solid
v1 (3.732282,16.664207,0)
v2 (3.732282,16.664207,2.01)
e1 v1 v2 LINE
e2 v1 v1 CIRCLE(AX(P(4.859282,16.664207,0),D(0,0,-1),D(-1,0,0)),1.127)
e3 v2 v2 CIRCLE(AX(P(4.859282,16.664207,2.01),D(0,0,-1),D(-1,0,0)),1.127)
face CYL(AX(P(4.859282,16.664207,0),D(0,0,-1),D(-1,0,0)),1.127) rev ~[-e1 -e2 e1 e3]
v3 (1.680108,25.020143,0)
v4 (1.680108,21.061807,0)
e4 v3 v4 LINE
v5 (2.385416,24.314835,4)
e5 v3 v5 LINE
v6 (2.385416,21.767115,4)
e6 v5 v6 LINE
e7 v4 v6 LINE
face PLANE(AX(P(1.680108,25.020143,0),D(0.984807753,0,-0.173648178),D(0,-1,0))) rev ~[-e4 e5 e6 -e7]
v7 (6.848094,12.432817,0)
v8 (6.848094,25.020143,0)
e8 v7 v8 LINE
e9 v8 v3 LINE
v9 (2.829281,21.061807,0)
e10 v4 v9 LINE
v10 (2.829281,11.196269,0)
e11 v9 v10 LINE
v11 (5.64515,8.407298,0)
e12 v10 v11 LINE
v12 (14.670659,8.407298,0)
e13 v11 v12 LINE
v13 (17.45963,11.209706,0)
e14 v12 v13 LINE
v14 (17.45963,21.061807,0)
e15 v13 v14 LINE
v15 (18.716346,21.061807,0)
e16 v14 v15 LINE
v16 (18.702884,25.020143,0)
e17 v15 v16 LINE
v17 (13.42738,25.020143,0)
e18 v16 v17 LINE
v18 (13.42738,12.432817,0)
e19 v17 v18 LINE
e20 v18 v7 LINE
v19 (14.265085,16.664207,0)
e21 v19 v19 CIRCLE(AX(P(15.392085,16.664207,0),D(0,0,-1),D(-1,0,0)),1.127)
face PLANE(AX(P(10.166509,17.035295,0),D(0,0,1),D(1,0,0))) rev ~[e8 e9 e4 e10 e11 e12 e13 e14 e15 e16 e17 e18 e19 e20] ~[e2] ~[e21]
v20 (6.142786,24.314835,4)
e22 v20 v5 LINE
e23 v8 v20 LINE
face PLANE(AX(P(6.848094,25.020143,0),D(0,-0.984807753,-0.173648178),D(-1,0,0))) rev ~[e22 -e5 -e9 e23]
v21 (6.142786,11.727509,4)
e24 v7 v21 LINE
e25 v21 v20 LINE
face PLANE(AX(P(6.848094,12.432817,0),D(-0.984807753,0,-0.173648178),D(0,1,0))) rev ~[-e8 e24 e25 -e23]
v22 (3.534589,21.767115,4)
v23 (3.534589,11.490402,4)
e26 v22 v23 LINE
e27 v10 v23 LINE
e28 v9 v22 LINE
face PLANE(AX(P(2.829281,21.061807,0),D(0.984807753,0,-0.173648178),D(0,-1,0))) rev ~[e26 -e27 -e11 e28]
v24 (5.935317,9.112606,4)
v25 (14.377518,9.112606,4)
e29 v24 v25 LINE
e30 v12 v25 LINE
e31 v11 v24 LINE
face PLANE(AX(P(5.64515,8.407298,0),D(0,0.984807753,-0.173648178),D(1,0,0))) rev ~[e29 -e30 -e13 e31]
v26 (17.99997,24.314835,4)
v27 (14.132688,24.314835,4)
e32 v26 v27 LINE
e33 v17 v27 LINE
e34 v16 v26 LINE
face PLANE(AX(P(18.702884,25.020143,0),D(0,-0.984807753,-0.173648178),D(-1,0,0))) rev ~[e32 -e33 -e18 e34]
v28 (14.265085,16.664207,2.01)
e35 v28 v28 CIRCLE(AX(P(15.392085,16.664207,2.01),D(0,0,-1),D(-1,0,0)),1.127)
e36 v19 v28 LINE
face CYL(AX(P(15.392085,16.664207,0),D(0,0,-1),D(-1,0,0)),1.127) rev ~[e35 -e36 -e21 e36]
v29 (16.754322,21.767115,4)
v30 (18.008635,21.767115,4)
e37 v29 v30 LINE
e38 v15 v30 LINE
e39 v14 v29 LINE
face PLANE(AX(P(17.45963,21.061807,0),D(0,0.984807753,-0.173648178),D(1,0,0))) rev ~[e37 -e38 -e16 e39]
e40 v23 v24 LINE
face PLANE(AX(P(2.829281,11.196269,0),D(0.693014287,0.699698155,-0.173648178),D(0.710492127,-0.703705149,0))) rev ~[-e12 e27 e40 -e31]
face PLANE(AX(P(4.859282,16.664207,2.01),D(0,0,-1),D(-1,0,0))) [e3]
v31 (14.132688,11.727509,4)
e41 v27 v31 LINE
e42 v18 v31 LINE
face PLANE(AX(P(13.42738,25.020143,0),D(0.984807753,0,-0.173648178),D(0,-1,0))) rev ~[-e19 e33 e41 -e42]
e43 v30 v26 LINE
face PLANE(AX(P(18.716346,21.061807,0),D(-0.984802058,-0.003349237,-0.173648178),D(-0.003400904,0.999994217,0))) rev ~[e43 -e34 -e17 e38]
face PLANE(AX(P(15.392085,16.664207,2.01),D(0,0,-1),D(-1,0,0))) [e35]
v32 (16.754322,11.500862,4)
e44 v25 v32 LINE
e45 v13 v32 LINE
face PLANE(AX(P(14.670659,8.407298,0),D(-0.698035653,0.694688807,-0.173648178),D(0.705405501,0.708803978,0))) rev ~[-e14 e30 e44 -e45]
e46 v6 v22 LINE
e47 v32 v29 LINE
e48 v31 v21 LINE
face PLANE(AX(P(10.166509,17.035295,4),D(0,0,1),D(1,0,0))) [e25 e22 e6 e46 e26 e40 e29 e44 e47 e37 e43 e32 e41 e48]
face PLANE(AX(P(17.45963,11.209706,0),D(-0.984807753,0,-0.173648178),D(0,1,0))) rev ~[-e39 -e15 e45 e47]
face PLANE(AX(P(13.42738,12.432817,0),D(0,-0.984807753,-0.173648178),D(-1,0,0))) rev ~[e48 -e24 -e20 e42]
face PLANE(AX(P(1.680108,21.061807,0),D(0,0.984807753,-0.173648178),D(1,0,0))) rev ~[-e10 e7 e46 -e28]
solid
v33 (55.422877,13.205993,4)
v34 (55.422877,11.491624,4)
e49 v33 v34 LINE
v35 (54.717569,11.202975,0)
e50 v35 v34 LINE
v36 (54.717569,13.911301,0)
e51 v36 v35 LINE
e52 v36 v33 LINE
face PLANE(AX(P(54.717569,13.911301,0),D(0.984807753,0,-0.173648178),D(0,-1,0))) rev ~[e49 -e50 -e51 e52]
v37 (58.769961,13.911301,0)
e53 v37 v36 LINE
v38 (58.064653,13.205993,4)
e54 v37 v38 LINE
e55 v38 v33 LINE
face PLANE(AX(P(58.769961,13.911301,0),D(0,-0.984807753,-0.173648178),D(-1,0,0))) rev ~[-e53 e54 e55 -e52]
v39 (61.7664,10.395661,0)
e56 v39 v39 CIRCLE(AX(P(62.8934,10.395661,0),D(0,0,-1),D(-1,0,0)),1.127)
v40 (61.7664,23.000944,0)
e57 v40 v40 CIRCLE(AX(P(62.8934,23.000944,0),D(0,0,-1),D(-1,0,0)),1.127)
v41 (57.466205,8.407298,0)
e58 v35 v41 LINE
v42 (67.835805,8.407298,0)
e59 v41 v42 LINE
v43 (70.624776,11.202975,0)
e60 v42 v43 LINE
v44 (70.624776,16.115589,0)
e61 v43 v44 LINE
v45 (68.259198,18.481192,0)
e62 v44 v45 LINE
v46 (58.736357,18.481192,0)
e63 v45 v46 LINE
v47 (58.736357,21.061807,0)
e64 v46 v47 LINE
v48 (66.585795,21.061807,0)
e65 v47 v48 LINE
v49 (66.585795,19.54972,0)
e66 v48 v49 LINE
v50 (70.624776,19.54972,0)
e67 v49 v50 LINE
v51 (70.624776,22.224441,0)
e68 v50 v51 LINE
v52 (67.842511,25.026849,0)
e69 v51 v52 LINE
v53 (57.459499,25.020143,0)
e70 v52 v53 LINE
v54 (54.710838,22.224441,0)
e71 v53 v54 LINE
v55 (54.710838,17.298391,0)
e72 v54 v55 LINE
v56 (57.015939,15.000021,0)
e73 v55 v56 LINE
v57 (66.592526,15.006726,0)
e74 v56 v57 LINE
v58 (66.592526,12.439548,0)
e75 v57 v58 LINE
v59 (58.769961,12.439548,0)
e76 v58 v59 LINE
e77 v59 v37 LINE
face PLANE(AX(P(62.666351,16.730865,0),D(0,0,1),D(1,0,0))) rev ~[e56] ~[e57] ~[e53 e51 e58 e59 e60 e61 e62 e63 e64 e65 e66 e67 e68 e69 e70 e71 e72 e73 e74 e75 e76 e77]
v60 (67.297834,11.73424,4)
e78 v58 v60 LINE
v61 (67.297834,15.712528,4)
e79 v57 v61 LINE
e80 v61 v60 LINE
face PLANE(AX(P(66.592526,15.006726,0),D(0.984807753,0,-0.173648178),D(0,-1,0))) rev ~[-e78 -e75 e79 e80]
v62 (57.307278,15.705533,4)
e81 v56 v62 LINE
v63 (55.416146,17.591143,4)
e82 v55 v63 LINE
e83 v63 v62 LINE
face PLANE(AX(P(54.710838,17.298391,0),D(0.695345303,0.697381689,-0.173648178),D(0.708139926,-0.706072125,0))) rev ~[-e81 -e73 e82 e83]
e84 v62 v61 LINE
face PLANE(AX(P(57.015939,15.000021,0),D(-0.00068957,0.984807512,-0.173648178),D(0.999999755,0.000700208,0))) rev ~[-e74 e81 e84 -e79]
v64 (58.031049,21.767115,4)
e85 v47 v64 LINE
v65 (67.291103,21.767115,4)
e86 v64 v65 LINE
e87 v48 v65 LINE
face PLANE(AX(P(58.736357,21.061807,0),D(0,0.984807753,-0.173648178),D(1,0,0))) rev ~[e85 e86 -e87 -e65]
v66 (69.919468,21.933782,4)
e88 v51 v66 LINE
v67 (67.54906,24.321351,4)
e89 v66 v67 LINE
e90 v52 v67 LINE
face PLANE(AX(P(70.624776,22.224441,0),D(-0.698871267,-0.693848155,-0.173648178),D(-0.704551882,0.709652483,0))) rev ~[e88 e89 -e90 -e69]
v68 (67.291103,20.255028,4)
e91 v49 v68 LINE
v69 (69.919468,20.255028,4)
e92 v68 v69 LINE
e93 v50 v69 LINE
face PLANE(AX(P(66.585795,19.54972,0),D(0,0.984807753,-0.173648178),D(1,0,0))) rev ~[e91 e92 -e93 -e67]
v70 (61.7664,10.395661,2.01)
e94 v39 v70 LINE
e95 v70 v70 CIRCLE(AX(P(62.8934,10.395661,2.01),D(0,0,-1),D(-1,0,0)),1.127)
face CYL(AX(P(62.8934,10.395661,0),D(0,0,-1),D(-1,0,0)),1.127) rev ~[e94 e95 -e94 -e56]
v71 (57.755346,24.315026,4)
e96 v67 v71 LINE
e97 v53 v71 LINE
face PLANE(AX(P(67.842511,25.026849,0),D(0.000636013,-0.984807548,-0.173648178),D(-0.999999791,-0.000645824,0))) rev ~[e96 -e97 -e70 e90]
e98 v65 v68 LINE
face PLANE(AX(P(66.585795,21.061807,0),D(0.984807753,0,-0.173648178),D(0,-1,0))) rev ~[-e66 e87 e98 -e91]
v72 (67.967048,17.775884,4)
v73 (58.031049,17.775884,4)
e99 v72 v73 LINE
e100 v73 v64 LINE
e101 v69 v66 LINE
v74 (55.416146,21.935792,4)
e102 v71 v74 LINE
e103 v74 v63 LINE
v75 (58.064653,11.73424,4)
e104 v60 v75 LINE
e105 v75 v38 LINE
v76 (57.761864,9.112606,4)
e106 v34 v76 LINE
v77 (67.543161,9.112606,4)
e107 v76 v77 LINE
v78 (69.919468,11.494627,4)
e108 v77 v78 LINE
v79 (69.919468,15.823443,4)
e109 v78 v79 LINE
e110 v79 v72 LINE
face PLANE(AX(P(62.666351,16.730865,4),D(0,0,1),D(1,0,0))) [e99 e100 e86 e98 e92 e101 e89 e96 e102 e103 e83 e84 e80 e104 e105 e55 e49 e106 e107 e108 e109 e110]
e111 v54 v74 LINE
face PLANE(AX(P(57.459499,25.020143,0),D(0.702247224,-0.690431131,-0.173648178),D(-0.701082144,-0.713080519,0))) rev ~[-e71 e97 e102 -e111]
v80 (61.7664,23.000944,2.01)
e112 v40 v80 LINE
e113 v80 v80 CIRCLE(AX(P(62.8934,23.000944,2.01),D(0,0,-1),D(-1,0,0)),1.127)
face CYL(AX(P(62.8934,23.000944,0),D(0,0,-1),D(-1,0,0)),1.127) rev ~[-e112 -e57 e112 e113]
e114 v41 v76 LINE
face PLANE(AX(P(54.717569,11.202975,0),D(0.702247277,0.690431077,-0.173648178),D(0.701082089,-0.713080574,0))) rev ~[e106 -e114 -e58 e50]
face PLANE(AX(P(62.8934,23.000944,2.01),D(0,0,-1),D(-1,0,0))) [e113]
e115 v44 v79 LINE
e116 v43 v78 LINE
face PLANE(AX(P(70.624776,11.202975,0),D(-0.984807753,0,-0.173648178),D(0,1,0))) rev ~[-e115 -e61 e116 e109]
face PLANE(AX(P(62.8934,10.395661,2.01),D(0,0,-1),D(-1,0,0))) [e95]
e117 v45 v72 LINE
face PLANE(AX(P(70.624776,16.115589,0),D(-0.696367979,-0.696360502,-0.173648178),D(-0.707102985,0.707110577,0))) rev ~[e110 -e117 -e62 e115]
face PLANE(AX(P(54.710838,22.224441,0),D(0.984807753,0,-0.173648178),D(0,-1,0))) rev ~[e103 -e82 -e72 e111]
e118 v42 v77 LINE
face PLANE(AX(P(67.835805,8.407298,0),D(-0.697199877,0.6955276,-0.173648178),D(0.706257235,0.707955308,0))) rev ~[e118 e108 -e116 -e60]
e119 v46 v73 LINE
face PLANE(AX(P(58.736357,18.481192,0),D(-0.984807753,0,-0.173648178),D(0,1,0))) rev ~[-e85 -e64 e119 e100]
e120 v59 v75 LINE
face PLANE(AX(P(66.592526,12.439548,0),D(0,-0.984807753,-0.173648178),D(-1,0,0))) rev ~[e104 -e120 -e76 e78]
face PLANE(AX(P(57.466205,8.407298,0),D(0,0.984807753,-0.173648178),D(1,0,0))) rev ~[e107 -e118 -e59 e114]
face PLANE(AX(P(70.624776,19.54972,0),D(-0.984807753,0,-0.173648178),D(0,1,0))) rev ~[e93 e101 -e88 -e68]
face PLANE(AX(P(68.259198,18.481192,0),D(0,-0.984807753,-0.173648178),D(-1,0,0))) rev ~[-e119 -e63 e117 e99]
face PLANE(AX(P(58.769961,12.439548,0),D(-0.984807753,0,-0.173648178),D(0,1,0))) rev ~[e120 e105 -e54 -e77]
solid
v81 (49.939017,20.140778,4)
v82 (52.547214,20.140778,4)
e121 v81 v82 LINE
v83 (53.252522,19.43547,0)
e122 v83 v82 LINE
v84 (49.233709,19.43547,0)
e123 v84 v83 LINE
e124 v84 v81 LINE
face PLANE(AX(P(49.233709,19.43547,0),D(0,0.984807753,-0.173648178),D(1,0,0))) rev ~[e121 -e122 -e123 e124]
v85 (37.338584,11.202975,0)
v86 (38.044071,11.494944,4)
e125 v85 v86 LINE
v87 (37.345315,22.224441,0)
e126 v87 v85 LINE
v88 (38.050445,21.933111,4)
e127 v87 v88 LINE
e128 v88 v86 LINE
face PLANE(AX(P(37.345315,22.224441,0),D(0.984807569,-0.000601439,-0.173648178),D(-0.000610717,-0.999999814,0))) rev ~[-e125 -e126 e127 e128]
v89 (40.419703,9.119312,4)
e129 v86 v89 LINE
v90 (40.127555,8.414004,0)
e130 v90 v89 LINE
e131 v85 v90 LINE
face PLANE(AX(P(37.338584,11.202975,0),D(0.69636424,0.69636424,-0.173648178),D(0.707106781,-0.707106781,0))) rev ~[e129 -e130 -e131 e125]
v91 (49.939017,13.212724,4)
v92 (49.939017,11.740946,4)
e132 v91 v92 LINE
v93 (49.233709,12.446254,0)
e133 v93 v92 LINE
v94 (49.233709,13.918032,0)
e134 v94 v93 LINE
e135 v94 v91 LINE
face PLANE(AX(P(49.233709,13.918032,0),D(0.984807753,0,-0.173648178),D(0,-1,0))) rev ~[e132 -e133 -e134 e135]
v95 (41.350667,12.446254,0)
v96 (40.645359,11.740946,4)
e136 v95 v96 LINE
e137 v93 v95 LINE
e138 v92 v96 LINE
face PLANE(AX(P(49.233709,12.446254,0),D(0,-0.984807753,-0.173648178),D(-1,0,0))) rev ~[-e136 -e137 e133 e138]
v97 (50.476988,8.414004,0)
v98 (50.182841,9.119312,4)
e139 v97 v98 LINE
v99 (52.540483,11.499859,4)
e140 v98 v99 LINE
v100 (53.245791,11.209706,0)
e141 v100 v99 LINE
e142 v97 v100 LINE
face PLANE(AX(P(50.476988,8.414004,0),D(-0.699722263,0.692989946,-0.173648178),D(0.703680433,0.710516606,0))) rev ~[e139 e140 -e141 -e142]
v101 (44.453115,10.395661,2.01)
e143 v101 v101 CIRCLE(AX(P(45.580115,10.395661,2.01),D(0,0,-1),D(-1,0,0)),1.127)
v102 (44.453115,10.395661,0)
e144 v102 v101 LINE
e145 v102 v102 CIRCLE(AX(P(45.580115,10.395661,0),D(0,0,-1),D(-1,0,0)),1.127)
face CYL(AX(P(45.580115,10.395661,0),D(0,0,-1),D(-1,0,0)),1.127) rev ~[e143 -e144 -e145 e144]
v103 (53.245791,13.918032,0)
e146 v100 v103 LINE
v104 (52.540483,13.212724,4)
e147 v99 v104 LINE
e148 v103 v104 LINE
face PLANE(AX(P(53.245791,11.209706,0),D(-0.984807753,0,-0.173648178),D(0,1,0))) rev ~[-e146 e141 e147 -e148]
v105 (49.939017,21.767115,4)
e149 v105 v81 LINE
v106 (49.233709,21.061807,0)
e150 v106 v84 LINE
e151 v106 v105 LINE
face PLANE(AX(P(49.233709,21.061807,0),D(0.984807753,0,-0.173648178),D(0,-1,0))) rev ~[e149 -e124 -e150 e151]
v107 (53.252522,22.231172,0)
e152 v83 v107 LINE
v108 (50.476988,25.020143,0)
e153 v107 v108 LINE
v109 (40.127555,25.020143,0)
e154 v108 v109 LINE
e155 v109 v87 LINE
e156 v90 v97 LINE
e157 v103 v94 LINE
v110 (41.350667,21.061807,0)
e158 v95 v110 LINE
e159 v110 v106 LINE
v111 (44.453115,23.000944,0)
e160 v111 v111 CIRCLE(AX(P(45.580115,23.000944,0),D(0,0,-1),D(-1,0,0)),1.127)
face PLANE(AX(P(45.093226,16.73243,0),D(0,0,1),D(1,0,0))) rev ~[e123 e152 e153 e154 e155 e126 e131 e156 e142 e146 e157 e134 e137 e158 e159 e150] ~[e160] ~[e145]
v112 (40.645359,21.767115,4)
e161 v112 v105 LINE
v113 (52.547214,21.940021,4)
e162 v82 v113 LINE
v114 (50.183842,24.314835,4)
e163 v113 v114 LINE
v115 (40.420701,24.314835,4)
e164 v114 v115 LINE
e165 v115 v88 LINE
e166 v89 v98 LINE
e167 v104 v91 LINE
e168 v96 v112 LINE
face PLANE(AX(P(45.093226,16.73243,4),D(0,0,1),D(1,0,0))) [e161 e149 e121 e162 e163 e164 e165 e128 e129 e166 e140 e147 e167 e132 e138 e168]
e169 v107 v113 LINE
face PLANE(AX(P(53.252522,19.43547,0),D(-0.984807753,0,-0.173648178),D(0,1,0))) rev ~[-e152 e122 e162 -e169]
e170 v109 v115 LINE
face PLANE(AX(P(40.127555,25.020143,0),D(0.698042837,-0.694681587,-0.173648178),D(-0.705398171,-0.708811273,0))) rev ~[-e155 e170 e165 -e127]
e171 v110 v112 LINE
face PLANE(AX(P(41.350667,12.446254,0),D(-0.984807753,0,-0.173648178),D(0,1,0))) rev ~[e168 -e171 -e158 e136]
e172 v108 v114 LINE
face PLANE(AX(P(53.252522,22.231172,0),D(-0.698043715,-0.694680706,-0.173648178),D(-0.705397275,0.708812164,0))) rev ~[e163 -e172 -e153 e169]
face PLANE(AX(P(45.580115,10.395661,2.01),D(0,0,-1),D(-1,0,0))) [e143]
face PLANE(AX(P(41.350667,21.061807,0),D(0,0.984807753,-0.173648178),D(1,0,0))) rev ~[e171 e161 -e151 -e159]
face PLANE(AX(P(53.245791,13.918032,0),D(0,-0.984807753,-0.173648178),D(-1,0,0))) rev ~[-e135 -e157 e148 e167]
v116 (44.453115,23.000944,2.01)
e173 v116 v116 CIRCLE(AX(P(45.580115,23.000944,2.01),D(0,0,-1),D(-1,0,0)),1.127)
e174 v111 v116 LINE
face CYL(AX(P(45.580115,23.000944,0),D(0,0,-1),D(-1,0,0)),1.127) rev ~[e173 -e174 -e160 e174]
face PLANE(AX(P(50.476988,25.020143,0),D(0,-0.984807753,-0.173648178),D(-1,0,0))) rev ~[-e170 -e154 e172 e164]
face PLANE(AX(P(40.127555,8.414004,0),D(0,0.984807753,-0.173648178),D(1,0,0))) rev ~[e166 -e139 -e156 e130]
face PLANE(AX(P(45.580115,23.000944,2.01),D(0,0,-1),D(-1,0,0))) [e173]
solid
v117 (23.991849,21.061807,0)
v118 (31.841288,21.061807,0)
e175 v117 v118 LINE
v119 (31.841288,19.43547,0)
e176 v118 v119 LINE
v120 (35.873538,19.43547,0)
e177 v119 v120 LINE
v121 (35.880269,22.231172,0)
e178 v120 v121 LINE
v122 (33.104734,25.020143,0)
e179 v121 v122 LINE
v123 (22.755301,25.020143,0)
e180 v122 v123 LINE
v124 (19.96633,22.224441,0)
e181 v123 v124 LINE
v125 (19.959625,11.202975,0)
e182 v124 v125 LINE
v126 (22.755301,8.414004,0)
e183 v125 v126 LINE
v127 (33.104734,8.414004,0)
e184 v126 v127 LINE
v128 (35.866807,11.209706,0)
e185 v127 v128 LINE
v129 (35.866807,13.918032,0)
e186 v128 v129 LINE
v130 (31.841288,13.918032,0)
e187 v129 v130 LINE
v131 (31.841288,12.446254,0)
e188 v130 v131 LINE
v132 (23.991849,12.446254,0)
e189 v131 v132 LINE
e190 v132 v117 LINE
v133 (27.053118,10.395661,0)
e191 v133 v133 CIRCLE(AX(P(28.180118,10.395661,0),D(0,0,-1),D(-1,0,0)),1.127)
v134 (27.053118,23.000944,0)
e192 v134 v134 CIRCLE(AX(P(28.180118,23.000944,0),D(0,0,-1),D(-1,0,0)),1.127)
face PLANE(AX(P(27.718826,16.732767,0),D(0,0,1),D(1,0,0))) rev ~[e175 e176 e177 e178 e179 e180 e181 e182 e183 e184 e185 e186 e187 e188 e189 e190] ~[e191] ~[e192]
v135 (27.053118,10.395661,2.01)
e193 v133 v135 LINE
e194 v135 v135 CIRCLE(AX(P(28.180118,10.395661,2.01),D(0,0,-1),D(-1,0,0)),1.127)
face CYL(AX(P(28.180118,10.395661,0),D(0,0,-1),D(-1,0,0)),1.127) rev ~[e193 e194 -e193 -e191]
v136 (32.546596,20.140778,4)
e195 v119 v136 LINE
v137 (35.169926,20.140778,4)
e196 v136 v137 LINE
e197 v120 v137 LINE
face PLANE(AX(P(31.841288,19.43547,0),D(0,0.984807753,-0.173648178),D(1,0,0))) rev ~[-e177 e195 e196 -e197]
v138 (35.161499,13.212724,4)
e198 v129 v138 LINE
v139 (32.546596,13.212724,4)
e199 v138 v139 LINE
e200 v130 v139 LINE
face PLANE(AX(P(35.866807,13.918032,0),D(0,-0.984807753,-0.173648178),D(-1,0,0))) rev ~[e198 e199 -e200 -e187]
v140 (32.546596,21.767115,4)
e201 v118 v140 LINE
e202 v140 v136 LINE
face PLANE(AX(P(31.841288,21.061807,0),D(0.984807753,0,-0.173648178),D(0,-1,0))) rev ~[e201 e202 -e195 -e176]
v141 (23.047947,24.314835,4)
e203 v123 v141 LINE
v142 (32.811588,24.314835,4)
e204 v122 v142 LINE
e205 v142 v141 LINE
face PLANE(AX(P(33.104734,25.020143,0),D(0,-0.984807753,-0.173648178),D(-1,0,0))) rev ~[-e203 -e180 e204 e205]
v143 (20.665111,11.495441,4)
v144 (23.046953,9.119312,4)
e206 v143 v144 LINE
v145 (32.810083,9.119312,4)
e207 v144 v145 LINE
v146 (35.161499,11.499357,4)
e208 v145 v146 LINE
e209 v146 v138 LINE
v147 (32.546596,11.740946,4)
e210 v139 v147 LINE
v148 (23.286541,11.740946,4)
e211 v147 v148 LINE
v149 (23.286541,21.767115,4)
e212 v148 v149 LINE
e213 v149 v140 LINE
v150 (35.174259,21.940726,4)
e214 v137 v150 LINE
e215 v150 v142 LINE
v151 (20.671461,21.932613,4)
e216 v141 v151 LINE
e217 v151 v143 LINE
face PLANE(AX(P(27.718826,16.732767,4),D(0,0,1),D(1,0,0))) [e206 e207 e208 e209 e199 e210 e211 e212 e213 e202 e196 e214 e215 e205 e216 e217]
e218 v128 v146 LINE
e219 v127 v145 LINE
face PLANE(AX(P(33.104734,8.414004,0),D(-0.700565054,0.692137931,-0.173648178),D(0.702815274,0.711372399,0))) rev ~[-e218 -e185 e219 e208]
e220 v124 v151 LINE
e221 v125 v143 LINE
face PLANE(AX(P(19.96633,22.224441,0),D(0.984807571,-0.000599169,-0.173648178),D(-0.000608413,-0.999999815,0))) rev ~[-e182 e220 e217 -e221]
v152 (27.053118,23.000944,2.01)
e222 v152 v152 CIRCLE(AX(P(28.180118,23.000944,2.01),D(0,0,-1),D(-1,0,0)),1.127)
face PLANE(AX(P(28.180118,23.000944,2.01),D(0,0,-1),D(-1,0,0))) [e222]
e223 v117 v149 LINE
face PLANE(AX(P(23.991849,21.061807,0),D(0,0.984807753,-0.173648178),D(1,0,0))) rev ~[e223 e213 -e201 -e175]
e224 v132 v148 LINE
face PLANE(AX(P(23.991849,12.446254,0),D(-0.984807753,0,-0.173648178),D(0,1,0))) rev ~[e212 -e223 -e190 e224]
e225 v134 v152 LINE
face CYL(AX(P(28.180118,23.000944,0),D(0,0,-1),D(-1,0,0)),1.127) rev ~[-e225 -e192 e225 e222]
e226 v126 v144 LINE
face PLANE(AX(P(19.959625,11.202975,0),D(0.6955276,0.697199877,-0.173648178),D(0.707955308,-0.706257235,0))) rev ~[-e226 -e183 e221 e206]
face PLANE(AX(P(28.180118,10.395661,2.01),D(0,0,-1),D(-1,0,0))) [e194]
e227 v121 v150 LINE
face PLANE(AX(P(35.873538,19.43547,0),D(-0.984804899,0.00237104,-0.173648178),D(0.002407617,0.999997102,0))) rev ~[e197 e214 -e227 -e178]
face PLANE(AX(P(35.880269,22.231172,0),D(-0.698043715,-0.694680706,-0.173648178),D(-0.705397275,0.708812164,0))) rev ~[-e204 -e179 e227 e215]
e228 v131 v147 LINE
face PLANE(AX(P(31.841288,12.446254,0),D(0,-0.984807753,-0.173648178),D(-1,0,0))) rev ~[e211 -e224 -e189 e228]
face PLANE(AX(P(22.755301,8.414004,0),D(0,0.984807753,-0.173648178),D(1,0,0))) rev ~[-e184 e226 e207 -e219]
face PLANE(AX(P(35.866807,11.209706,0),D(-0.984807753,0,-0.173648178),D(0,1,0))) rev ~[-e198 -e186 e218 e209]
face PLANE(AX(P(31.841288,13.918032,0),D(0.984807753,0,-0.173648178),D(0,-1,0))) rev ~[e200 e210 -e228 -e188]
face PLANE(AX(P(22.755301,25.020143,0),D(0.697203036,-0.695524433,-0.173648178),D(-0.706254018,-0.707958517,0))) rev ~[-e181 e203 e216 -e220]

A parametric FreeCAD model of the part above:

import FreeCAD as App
import Part
import Sketcher
Q = App.Units.Quantity


def faces_at(feature, points):
    """Names of the faces that lie closest to the given points."""
    faces = feature.Shape.Faces
    near = lambda p: min(range(len(faces)), key=lambda i: faces[i].distToShape(Part.Vertex(*p))[0])
    return sorted({f"Face{near(p) + 1}" for p in points})

doc = App.newDocument("Part")
body = doc.addObject("PartDesign::Body", "Body")

# Sketch on XY plane
sketch1 = body.newObject("Sketcher::SketchObject", "Sketch")
sketch1.AttachmentSupport = (doc.getObject("XY_Plane"), [""])
sketch1.MapMode = "FlatFace"
sketch1.addGeometry([
    Part.LineSegment(App.Vector(67.8, 25, 0), App.Vector(57.5, 25, 0)),  # 0
    Part.LineSegment(App.Vector(57.5, 25, 0), App.Vector(54.7, 22.2, 0)),  # 1
    Part.LineSegment(App.Vector(54.7, 22.2, 0), App.Vector(54.7, 17.3, 0)),  # 2
    Part.LineSegment(App.Vector(54.7, 17.3, 0), App.Vector(57, 15, 0)),  # 3
    Part.LineSegment(App.Vector(57, 15, 0), App.Vector(66.6, 15, 0)),  # 4
    Part.LineSegment(App.Vector(66.6, 15, 0), App.Vector(66.6, 12.4, 0)),  # 5
    Part.LineSegment(App.Vector(66.6, 12.4, 0), App.Vector(58.8, 12.4, 0)),  # 6
    Part.LineSegment(App.Vector(58.8, 12.4, 0), App.Vector(58.8, 13.9, 0)),  # 7
    Part.LineSegment(App.Vector(58.8, 13.9, 0), App.Vector(54.7, 13.9, 0)),  # 8
    Part.LineSegment(App.Vector(54.7, 13.9, 0), App.Vector(54.7, 11.2, 0)),  # 9
    Part.LineSegment(App.Vector(54.7, 11.2, 0), App.Vector(57.5, 8.4, 0)),  # 10
    Part.LineSegment(App.Vector(57.5, 8.4, 0), App.Vector(67.8, 8.4, 0)),  # 11
    Part.LineSegment(App.Vector(67.8, 8.4, 0), App.Vector(70.6, 11.2, 0)),  # 12
    Part.LineSegment(App.Vector(70.6, 11.2, 0), App.Vector(70.6, 16.1, 0)),  # 13
    Part.LineSegment(App.Vector(70.6, 16.1, 0), App.Vector(68.3, 18.5, 0)),  # 14
    Part.LineSegment(App.Vector(68.3, 18.5, 0), App.Vector(58.7, 18.5, 0)),  # 15
    Part.LineSegment(App.Vector(58.7, 18.5, 0), App.Vector(58.7, 21.1, 0)),  # 16
    Part.LineSegment(App.Vector(58.7, 21.1, 0), App.Vector(66.6, 21.1, 0)),  # 17
    Part.LineSegment(App.Vector(66.6, 21.1, 0), App.Vector(66.6, 19.5, 0)),  # 18
    Part.LineSegment(App.Vector(66.6, 19.5, 0), App.Vector(70.6, 19.5, 0)),  # 19
    Part.LineSegment(App.Vector(70.6, 19.5, 0), App.Vector(70.6, 22.2, 0)),  # 20
    Part.LineSegment(App.Vector(70.6, 22.2, 0), App.Vector(67.8, 25, 0)),  # 21
], False)
sketch1.addConstraint([
    Sketcher.Constraint("Coincident", 0, 2, 1, 1),
    Sketcher.Constraint("Coincident", 1, 2, 2, 1),
    Sketcher.Constraint("Coincident", 2, 2, 3, 1),
    Sketcher.Constraint("Coincident", 3, 2, 4, 1),
    Sketcher.Constraint("Coincident", 4, 2, 5, 1),
    Sketcher.Constraint("Coincident", 5, 2, 6, 1),
    Sketcher.Constraint("Coincident", 6, 2, 7, 1),
    Sketcher.Constraint("Coincident", 7, 2, 8, 1),
    Sketcher.Constraint("Coincident", 8, 2, 9, 1),
    Sketcher.Constraint("Coincident", 9, 2, 10, 1),
    Sketcher.Constraint("Coincident", 10, 2, 11, 1),
    Sketcher.Constraint("Coincident", 11, 2, 12, 1),
    Sketcher.Constraint("Coincident", 12, 2, 13, 1),
    Sketcher.Constraint("Coincident", 13, 2, 14, 1),
    Sketcher.Constraint("Coincident", 14, 2, 15, 1),
    Sketcher.Constraint("Coincident", 15, 2, 16, 1),
    Sketcher.Constraint("Coincident", 16, 2, 17, 1),
    Sketcher.Constraint("Coincident", 17, 2, 18, 1),
    Sketcher.Constraint("Coincident", 18, 2, 19, 1),
    Sketcher.Constraint("Coincident", 19, 2, 20, 1),
    Sketcher.Constraint("Coincident", 20, 2, 21, 1),
    Sketcher.Constraint("Coincident", 21, 2, 0, 1),
    Sketcher.Constraint("Vertical", 2),
    Sketcher.Constraint("Vertical", 5),
    Sketcher.Constraint("Horizontal", 6),
    Sketcher.Constraint("Vertical", 7),
    Sketcher.Constraint("Horizontal", 8),
    Sketcher.Constraint("Vertical", 9),
    Sketcher.Constraint("Horizontal", 11),
    Sketcher.Constraint("Vertical", 13),
    Sketcher.Constraint("Horizontal", 15),
    Sketcher.Constraint("Vertical", 16),
    Sketcher.Constraint("Horizontal", 17),
    Sketcher.Constraint("Vertical", 18),
    Sketcher.Constraint("Horizontal", 19),
    Sketcher.Constraint("Vertical", 20),
    Sketcher.Constraint("Horizontal", 9, 2, 12, 2),
    Sketcher.Constraint("Horizontal", 1, 2, 20, 2),
    Sketcher.Constraint("Vertical", 13, 2, 19, 2),
    Sketcher.Constraint("DistanceX", 11, 1, 11, 2, 10.369601),
    Sketcher.Constraint("DistanceX", 15, 2, 15, 1, 9.522841),
    Sketcher.Constraint("DistanceX", 17, 1, 17, 2, 7.849438),
    Sketcher.Constraint("DistanceX", 19, 1, 19, 2, 4.038981),
    Sketcher.Constraint("DistanceY", 2, 2, 2, 1, 4.926051),
    Sketcher.Constraint("DistanceY", 5, 2, 5, 1, 2.567178),
    Sketcher.Constraint("DistanceY", 20, 1, 20, 2, 2.674722),
    Sketcher.Constraint("DistanceX", -1, 1, 0, 2, 57.459499),
    Sketcher.Constraint("DistanceY", -1, 1, 7, 2, 13.911301),
    Sketcher.Constraint("DistanceY", -1, 1, 10, 2, 8.407298),
    Sketcher.Constraint("DistanceY", 1, 2, 0, 2, 2.795702),
    Sketcher.Constraint("DistanceX", 2, 2, 3, 2, 2.305101),
    Sketcher.Constraint("DistanceY", 2, 2, 15, 2, 1.182802),
    Sketcher.Constraint("Distance", 3, 3.255149),
    Sketcher.Constraint("Distance", 4, 9.57659),
    Sketcher.Constraint("Distance", 10, 3.920562),
    Sketcher.Constraint("Distance", 14, 3.345451),
    Sketcher.Constraint("DistanceX", 6, 2, 6, 1, 7.822565),
    Sketcher.Constraint("DistanceX", 8, 2, 8, 1, 4.052392),
    Sketcher.Constraint("DistanceY", 7, 1, 7, 2, 1.471752),
    Sketcher.Constraint("DistanceY", 9, 2, 9, 1, 2.708326),
    Sketcher.Constraint("DistanceY", 13, 1, 13, 2, 4.912614),
    Sketcher.Constraint("DistanceY", 16, 1, 16, 2, 2.580615),
    Sketcher.Constraint("DistanceX", -1, 1, 1, 2, 54.710838),
    Sketcher.Constraint("DistanceX", -1, 1, 21, 2, 67.842511),
    Sketcher.Constraint("DistanceY", -1, 1, 21, 2, 25.026849),
    Sketcher.Constraint("DistanceX", 11, 2, 12, 2, 2.788971),
])
pad1 = body.newObject("PartDesign::Pad", "Pad")
pad1.Profile = sketch1
pad1.Length = 4
doc.recompute()

draft = body.newObject("PartDesign::Draft", "Draft")
draft.Base = (pad1, faces_at(pad1, [
    (62.651, 25.023, 2),
    (56.085, 23.622, 2),
    (54.711, 19.761, 2),
    (55.863, 16.149, 2),
    (61.804, 15.003, 2),
    (66.593, 13.723, 2),
    (62.681, 12.44, 2),
    (58.77, 13.175, 2),
    (56.744, 13.911, 2),
    (54.718, 12.557, 2),
    (56.092, 9.805, 2),
    (62.651, 8.407, 2),
    (69.23, 9.805, 2),
    (70.625, 13.659, 2),
    (69.442, 17.298, 2),
    (63.498, 18.481, 2),
    (58.736, 19.771, 2),
    (62.661, 21.062, 2),
    (66.586, 20.306, 2),
    (68.605, 19.55, 2),
    (70.625, 20.887, 2),
    (69.234, 23.626, 2),
]))
draft.NeutralPlane = (doc.getObject("XY_Plane"), [""])
draft.Angle = 10
draft.Reversed = False
body2 = doc.addObject("PartDesign::Body", "Body001")

# Sketch on XY plane
sketch2 = body2.newObject("Sketcher::SketchObject", "Sketch001")
sketch2.AttachmentSupport = (doc.getObject("XY_Plane001"), [""])
sketch2.MapMode = "FlatFace"
sketch2.addGeometry([
    Part.LineSegment(App.Vector(50.5, 25, 0), App.Vector(40.1, 25, 0)),  # 0
    Part.LineSegment(App.Vector(40.1, 25, 0), App.Vector(37.3, 22.2, 0)),  # 1
    Part.LineSegment(App.Vector(37.3, 22.2, 0), App.Vector(37.3, 11.2, 0)),  # 2
    Part.LineSegment(App.Vector(37.3, 11.2, 0), App.Vector(40.1, 8.4, 0)),  # 3
    Part.LineSegment(App.Vector(40.1, 8.4, 0), App.Vector(50.5, 8.4, 0)),  # 4
    Part.LineSegment(App.Vector(50.5, 8.4, 0), App.Vector(53.2, 11.2, 0)),  # 5
    Part.LineSegment(App.Vector(53.2, 11.2, 0), App.Vector(53.2, 13.9, 0)),  # 6
    Part.LineSegment(App.Vector(53.2, 13.9, 0), App.Vector(49.2, 13.9, 0)),  # 7
    Part.LineSegment(App.Vector(49.2, 13.9, 0), App.Vector(49.2, 12.4, 0)),  # 8
    Part.LineSegment(App.Vector(49.2, 12.4, 0), App.Vector(41.4, 12.4, 0)),  # 9
    Part.LineSegment(App.Vector(41.4, 12.4, 0), App.Vector(41.4, 21.1, 0)),  # 10
    Part.LineSegment(App.Vector(41.4, 21.1, 0), App.Vector(49.2, 21.1, 0)),  # 11
    Part.LineSegment(App.Vector(49.2, 21.1, 0), App.Vector(49.2, 19.4, 0)),  # 12
    Part.LineSegment(App.Vector(49.2, 19.4, 0), App.Vector(53.3, 19.4, 0)),  # 13
    Part.LineSegment(App.Vector(53.3, 19.4, 0), App.Vector(53.3, 22.2, 0)),  # 14
    Part.LineSegment(App.Vector(53.3, 22.2, 0), App.Vector(50.5, 25, 0)),  # 15
], False)
sketch2.addConstraint([
    Sketcher.Constraint("Coincident", 0, 2, 1, 1),
    Sketcher.Constraint("Coincident", 1, 2, 2, 1),
    Sketcher.Constraint("Coincident", 2, 2, 3, 1),
    Sketcher.Constraint("Coincident", 3, 2, 4, 1),
    Sketcher.Constraint("Coincident", 4, 2, 5, 1),
    Sketcher.Constraint("Coincident", 5, 2, 6, 1),
    Sketcher.Constraint("Coincident", 6, 2, 7, 1),
    Sketcher.Constraint("Coincident", 7, 2, 8, 1),
    Sketcher.Constraint("Coincident", 8, 2, 9, 1),
    Sketcher.Constraint("Coincident", 9, 2, 10, 1),
    Sketcher.Constraint("Coincident", 10, 2, 11, 1),
    Sketcher.Constraint("Coincident", 11, 2, 12, 1),
    Sketcher.Constraint("Coincident", 12, 2, 13, 1),
    Sketcher.Constraint("Coincident", 13, 2, 14, 1),
    Sketcher.Constraint("Coincident", 14, 2, 15, 1),
    Sketcher.Constraint("Coincident", 15, 2, 0, 1),
    Sketcher.Constraint("Horizontal", 0),
    Sketcher.Constraint("Horizontal", 4),
    Sketcher.Constraint("Vertical", 6),
    Sketcher.Constraint("Horizontal", 7),
    Sketcher.Constraint("Vertical", 8),
    Sketcher.Constraint("Horizontal", 9),
    Sketcher.Constraint("Vertical", 10),
    Sketcher.Constraint("Horizontal", 11),
    Sketcher.Constraint("Vertical", 12),
    Sketcher.Constraint("Horizontal", 13),
    Sketcher.Constraint("Vertical", 14),
    Sketcher.Constraint("Vertical", 0, 2, 3, 2),
    Sketcher.Constraint("Vertical", 8, 2, 11, 2),
    Sketcher.Constraint("Vertical", 4, 2, 15, 2),
    Sketcher.Constraint("Angle", 3, Q("-45 deg")),
    Sketcher.Constraint("DistanceY", 14, 1, 14, 2, 2.795702),
    Sketcher.Constraint("Distance", 3, 3.9442),
    Sketcher.Constraint("DistanceY", 1, 2, 0, 2, 2.795702),
    Sketcher.Constraint("DistanceY", 4, 2, 5, 2, 2.795702),
    Sketcher.Constraint("Distance", 1, 3.944212),
    Sketcher.Constraint("Distance", 2, 11.021468),
    Sketcher.Constraint("Distance", 15, 3.934711),
    Sketcher.Constraint("DistanceX", 0, 2, 0, 1, 10.349433),
    Sketcher.Constraint("DistanceX", 7, 2, 7, 1, 4.012082),
    Sketcher.Constraint("DistanceX", 9, 2, 9, 1, 7.883042),
    Sketcher.Constraint("DistanceX", 13, 1, 13, 2, 4.018813),
    Sketcher.Constraint("DistanceY", 6, 1, 6, 2, 2.708326),
    Sketcher.Constraint("DistanceY", 8, 2, 8, 1, 1.471778),
    Sketcher.Constraint("DistanceY", 10, 1, 10, 2, 8.615553),
    Sketcher.Constraint("DistanceY", 12, 2, 12, 1, 1.626337),
    Sketcher.Constraint("DistanceY", -1, 1, 1, 2, 22.224441),
    Sketcher.Constraint("DistanceX", -1, 1, 4, 2, 50.476988),
])
pad2 = body2.newObject("PartDesign::Pad", "Pad001")
pad2.Profile = sketch2
pad2.Length = 4
doc.recompute()

draft2 = body2.newObject("PartDesign::Draft", "Draft001")
draft2.Base = (pad2, faces_at(pad2, [
    (45.302, 25.02, 2),
    (38.736, 23.622, 2),
    (37.342, 16.714, 2),
    (38.733, 9.808, 2),
    (45.302, 8.414, 2),
    (51.861, 9.812, 2),
    (53.246, 12.564, 2),
    (51.24, 13.918, 2),
    (49.234, 13.182, 2),
    (45.292, 12.446, 2),
    (41.351, 16.754, 2),
    (45.292, 21.062, 2),
    (49.234, 20.249, 2),
    (51.243, 19.435, 2),
    (53.253, 20.833, 2),
    (51.865, 23.626, 2),
]))
draft2.NeutralPlane = (doc.getObject("XY_Plane001"), [""])
draft2.Angle = 10
draft2.Reversed = False
body3 = doc.addObject("PartDesign::Body", "Body002")

# Sketch on XY plane
sketch3 = body3.newObject("Sketcher::SketchObject", "Sketch002")
sketch3.AttachmentSupport = (doc.getObject("XY_Plane002"), [""])
sketch3.MapMode = "FlatFace"
sketch3.addGeometry([
    Part.LineSegment(App.Vector(33.1, 25, 0), App.Vector(22.8, 25, 0)),  # 0
    Part.LineSegment(App.Vector(22.8, 25, 0), App.Vector(20, 22.2, 0)),  # 1
    Part.LineSegment(App.Vector(20, 22.2, 0), App.Vector(20, 11.2, 0)),  # 2
    Part.LineSegment(App.Vector(20, 11.2, 0), App.Vector(22.8, 8.4, 0)),  # 3
    Part.LineSegment(App.Vector(22.8, 8.4, 0), App.Vector(33.1, 8.4, 0)),  # 4
    Part.LineSegment(App.Vector(33.1, 8.4, 0), App.Vector(35.9, 11.2, 0)),  # 5
    Part.LineSegment(App.Vector(35.9, 11.2, 0), App.Vector(35.9, 13.9, 0)),  # 6
    Part.LineSegment(App.Vector(35.9, 13.9, 0), App.Vector(31.8, 13.9, 0)),  # 7
    Part.LineSegment(App.Vector(31.8, 13.9, 0), App.Vector(31.8, 12.4, 0)),  # 8
    Part.LineSegment(App.Vector(31.8, 12.4, 0), App.Vector(24, 12.4, 0)),  # 9
    Part.LineSegment(App.Vector(24, 12.4, 0), App.Vector(24, 21.1, 0)),  # 10
    Part.LineSegment(App.Vector(24, 21.1, 0), App.Vector(31.8, 21.1, 0)),  # 11
    Part.LineSegment(App.Vector(31.8, 21.1, 0), App.Vector(31.8, 19.4, 0)),  # 12
    Part.LineSegment(App.Vector(31.8, 19.4, 0), App.Vector(35.9, 19.4, 0)),  # 13
    Part.LineSegment(App.Vector(35.9, 19.4, 0), App.Vector(35.9, 22.2, 0)),  # 14
    Part.LineSegment(App.Vector(35.9, 22.2, 0), App.Vector(33.1, 25, 0)),  # 15
], False)
sketch3.addConstraint([
    Sketcher.Constraint("Coincident", 0, 2, 1, 1),
    Sketcher.Constraint("Coincident", 1, 2, 2, 1),
    Sketcher.Constraint("Coincident", 2, 2, 3, 1),
    Sketcher.Constraint("Coincident", 3, 2, 4, 1),
    Sketcher.Constraint("Coincident", 4, 2, 5, 1),
    Sketcher.Constraint("Coincident", 5, 2, 6, 1),
    Sketcher.Constraint("Coincident", 6, 2, 7, 1),
    Sketcher.Constraint("Coincident", 7, 2, 8, 1),
    Sketcher.Constraint("Coincident", 8, 2, 9, 1),
    Sketcher.Constraint("Coincident", 9, 2, 10, 1),
    Sketcher.Constraint("Coincident", 10, 2, 11, 1),
    Sketcher.Constraint("Coincident", 11, 2, 12, 1),
    Sketcher.Constraint("Coincident", 12, 2, 13, 1),
    Sketcher.Constraint("Coincident", 13, 2, 14, 1),
    Sketcher.Constraint("Coincident", 14, 2, 15, 1),
    Sketcher.Constraint("Coincident", 15, 2, 0, 1),
    Sketcher.Constraint("Horizontal", 0),
    Sketcher.Constraint("Horizontal", 4),
    Sketcher.Constraint("Vertical", 6),
    Sketcher.Constraint("Horizontal", 7),
    Sketcher.Constraint("Vertical", 8),
    Sketcher.Constraint("Horizontal", 9),
    Sketcher.Constraint("Vertical", 10),
    Sketcher.Constraint("Horizontal", 11),
    Sketcher.Constraint("Vertical", 12),
    Sketcher.Constraint("Horizontal", 13),
    Sketcher.Constraint("Vertical", 0, 2, 3, 2),
    Sketcher.Constraint("Vertical", 8, 2, 11, 2),
    Sketcher.Constraint("Vertical", 4, 2, 15, 2),
    Sketcher.Constraint("DistanceX", 7, 2, 7, 1, 4.025519),
    Sketcher.Constraint("DistanceX", 9, 2, 9, 1, 7.849438),
    Sketcher.Constraint("DistanceX", 13, 1, 13, 2, 4.03225),
    Sketcher.Constraint("DistanceX", -1, 1, 0, 2, 22.755301),
    Sketcher.Constraint("DistanceY", 1, 2, 0, 2, 2.795702),
    Sketcher.Constraint("DistanceY", 4, 2, 5, 2, 2.795702),
    Sketcher.Constraint("DistanceY", 13, 2, 14, 2, 2.795702),
    Sketcher.Constraint("Distance", 2, 11.021468),
    Sketcher.Constraint("Distance", 5, 3.930012),
    Sketcher.Constraint("Distance", 15, 3.934711),
    Sketcher.Constraint("DistanceX", 0, 2, 0, 1, 10.349433),
    Sketcher.Constraint("DistanceY", 6, 1, 6, 2, 2.708326),
    Sketcher.Constraint("DistanceY", 8, 2, 8, 1, 1.471778),
    Sketcher.Constraint("DistanceY", 10, 1, 10, 2, 8.615553),
    Sketcher.Constraint("DistanceY", 12, 2, 12, 1, 1.626337),
    Sketcher.Constraint("DistanceX", -1, 1, 1, 2, 19.96633),
    Sketcher.Constraint("DistanceY", -1, 1, 1, 2, 22.224441),
    Sketcher.Constraint("DistanceY", -1, 1, 6, 2, 13.918032),
    Sketcher.Constraint("DistanceX", 2, 2, 4, 2, 13.14511),
])
pad3 = body3.newObject("PartDesign::Pad", "Pad002")
pad3.Profile = sketch3
pad3.Length = 4
doc.recompute()

draft3 = body3.newObject("PartDesign::Draft", "Draft002")
draft3.Base = (pad3, faces_at(pad3, [
    (27.93, 25.02, 2),
    (21.361, 23.622, 2),
    (19.963, 16.714, 2),
    (21.357, 9.808, 2),
    (27.93, 8.414, 2),
    (34.486, 9.812, 2),
    (35.867, 12.564, 2),
    (33.854, 13.918, 2),
    (31.841, 13.182, 2),
    (27.917, 12.446, 2),
    (23.992, 16.754, 2),
    (27.917, 21.062, 2),
    (31.841, 20.249, 2),
    (33.857, 19.435, 2),
    (35.877, 20.833, 2),
    (34.493, 23.626, 2),
]))
draft3.NeutralPlane = (doc.getObject("XY_Plane002"), [""])
draft3.Angle = 10
draft3.Reversed = False
body4 = doc.addObject("PartDesign::Body", "Body003")

# Sketch on XY plane
sketch4 = body4.newObject("Sketcher::SketchObject", "Sketch003")
sketch4.AttachmentSupport = (doc.getObject("XY_Plane003"), [""])
sketch4.MapMode = "FlatFace"
sketch4.addGeometry([
    Part.LineSegment(App.Vector(18.7, 25, 0), App.Vector(13.4, 25, 0)),  # 0
    Part.LineSegment(App.Vector(13.4, 25, 0), App.Vector(13.4, 12.4, 0)),  # 1
    Part.LineSegment(App.Vector(13.4, 12.4, 0), App.Vector(6.8, 12.4, 0)),  # 2
    Part.LineSegment(App.Vector(6.8, 12.4, 0), App.Vector(6.8, 25, 0)),  # 3
    Part.LineSegment(App.Vector(6.8, 25, 0), App.Vector(1.7, 25, 0)),  # 4
    Part.LineSegment(App.Vector(1.7, 25, 0), App.Vector(1.7, 21.1, 0)),  # 5
    Part.LineSegment(App.Vector(1.7, 21.1, 0), App.Vector(2.8, 21.1, 0)),  # 6
    Part.LineSegment(App.Vector(2.8, 21.1, 0), App.Vector(2.8, 11.2, 0)),  # 7
    Part.LineSegment(App.Vector(2.8, 11.2, 0), App.Vector(5.6, 8.4, 0)),  # 8
    Part.LineSegment(App.Vector(5.6, 8.4, 0), App.Vector(14.7, 8.4, 0)),  # 9
    Part.LineSegment(App.Vector(14.7, 8.4, 0), App.Vector(17.5, 11.2, 0)),  # 10
    Part.LineSegment(App.Vector(17.5, 11.2, 0), App.Vector(17.5, 21.1, 0)),  # 11
    Part.LineSegment(App.Vector(17.5, 21.1, 0), App.Vector(18.7, 21.1, 0)),  # 12
    Part.LineSegment(App.Vector(18.7, 21.1, 0), App.Vector(18.7, 25, 0)),  # 13
], False)
sketch4.addConstraint([
    Sketcher.Constraint("Coincident", 0, 2, 1, 1),
    Sketcher.Constraint("Coincident", 1, 2, 2, 1),
    Sketcher.Constraint("Coincident", 2, 2, 3, 1),
    Sketcher.Constraint("Coincident", 3, 2, 4, 1),
    Sketcher.Constraint("Coincident", 4, 2, 5, 1),
    Sketcher.Constraint("Coincident", 5, 2, 6, 1),
    Sketcher.Constraint("Coincident", 6, 2, 7, 1),
    Sketcher.Constraint("Coincident", 7, 2, 8, 1),
    Sketcher.Constraint("Coincident", 8, 2, 9, 1),
    Sketcher.Constraint("Coincident", 9, 2, 10, 1),
    Sketcher.Constraint("Coincident", 10, 2, 11, 1),
    Sketcher.Constraint("Coincident", 11, 2, 12, 1),
    Sketcher.Constraint("Coincident", 12, 2, 13, 1),
    Sketcher.Constraint("Coincident", 13, 2, 0, 1),
    Sketcher.Constraint("Horizontal", 0),
    Sketcher.Constraint("Vertical", 1),
    Sketcher.Constraint("Horizontal", 2),
    Sketcher.Constraint("Vertical", 3),
    Sketcher.Constraint("Horizontal", 4),
    Sketcher.Constraint("Vertical", 5),
    Sketcher.Constraint("Horizontal", 6),
    Sketcher.Constraint("Vertical", 7),
    Sketcher.Constraint("Horizontal", 9),
    Sketcher.Constraint("Vertical", 11),
    Sketcher.Constraint("Horizontal", 12),
    Sketcher.Constraint("Horizontal", 0, 2, 3, 2),
    Sketcher.Constraint("Horizontal", 6, 2, 11, 2),
    Sketcher.Constraint("DistanceY", 11, 1, 11, 2, 9.852101),
    Sketcher.Constraint("DistanceX", 9, 1, 9, 2, 9.025509),
    Sketcher.Constraint("DistanceY", -1, 1, 8, 2, 8.407298),
    Sketcher.Constraint("DistanceX", 6, 2, 0, 2, 10.598099),
    Sketcher.Constraint("Distance", 13, 3.958359),
    Sketcher.Constraint("DistanceX", 0, 2, 0, 1, 5.275504),
    Sketcher.Constraint("DistanceX", 2, 2, 2, 1, 6.579286),
    Sketcher.Constraint("DistanceX", 4, 2, 4, 1, 5.167986),
    Sketcher.Constraint("DistanceX", 12, 1, 12, 2, 1.256716),
    Sketcher.Constraint("DistanceY", 1, 2, 1, 1, 12.587326),
    Sketcher.Constraint("DistanceY", 7, 2, 7, 1, 9.865538),
    Sketcher.Constraint("DistanceX", -1, 1, 0, 2, 13.42738),
    Sketcher.Constraint("DistanceY", -1, 1, 7, 2, 11.196269),
    Sketcher.Constraint("DistanceX", -1, 1, 8, 2, 5.64515),
    Sketcher.Constraint("DistanceX", -1, 1, 10, 2, 17.45963),
])
pad4 = body4.newObject("PartDesign::Pad", "Pad003")
pad4.Profile = sketch4
pad4.Length = 4
doc.recompute()

draft4 = body4.newObject("PartDesign::Draft", "Draft003")
draft4.Base = (pad4, faces_at(pad4, [
    (16.065, 25.02, 2),
    (13.427, 18.726, 2),
    (10.138, 12.433, 2),
    (6.848, 18.726, 2),
    (4.264, 25.02, 2),
    (1.68, 23.041, 2),
    (2.255, 21.062, 2),
    (2.829, 16.129, 2),
    (4.237, 9.802, 2),
    (10.158, 8.407, 2),
    (16.065, 9.809, 2),
    (17.46, 16.136, 2),
    (18.088, 21.062, 2),
    (18.71, 23.041, 2),
]))
draft4.NeutralPlane = (doc.getObject("XY_Plane003"), [""])
draft4.Angle = 10
draft4.Reversed = False
body5 = doc.addObject("PartDesign::Body", "Body004")
body5.AllowCompound = True

# Sketch on XY plane
sketch5 = body5.newObject("Sketcher::SketchObject", "Sketch004")
sketch5.AttachmentSupport = (doc.getObject("XY_Plane004"), [""])
sketch5.MapMode = "FlatFace"
sketch5.addGeometry([
    Part.Circle(App.Vector(62.9, 23, 0), App.Vector(0, 0, 1), 1.1),  # 0
    Part.Circle(App.Vector(62.9, 10.4, 0), App.Vector(0, 0, 1), 1.1),  # 1
    Part.Circle(App.Vector(45.6, 10.4, 0), App.Vector(0, 0, 1), 1.1),  # 2
    Part.Circle(App.Vector(45.6, 23, 0), App.Vector(0, 0, 1), 1.1),  # 3
    Part.Circle(App.Vector(28.2, 10.4, 0), App.Vector(0, 0, 1), 1.1),  # 4
    Part.Circle(App.Vector(28.2, 23, 0), App.Vector(0, 0, 1), 1.1),  # 5
    Part.Circle(App.Vector(15.4, 16.7, 0), App.Vector(0, 0, 1), 1.1),  # 6
    Part.Circle(App.Vector(4.9, 16.7, 0), App.Vector(0, 0, 1), 1.1),  # 7
], False)
sketch5.addConstraint([
    Sketcher.Constraint("Equal", 0, 1),
    Sketcher.Constraint("Equal", 1, 2),
    Sketcher.Constraint("Equal", 2, 3),
    Sketcher.Constraint("Equal", 3, 4),
    Sketcher.Constraint("Equal", 4, 5),
    Sketcher.Constraint("Equal", 5, 6),
    Sketcher.Constraint("Equal", 6, 7),
    Sketcher.Constraint("Horizontal", 1, 3, 2, 3),
    Sketcher.Constraint("Horizontal", 0, 3, 3, 3),
    Sketcher.Constraint("Horizontal", 2, 3, 4, 3),
    Sketcher.Constraint("Horizontal", 3, 3, 5, 3),
    Sketcher.Constraint("Horizontal", 6, 3, 7, 3),
    Sketcher.Constraint("Vertical", 0, 3, 1, 3),
    Sketcher.Constraint("Vertical", 2, 3, 3, 3),
    Sketcher.Constraint("Vertical", 4, 3, 5, 3),
    Sketcher.Constraint("Diameter", 0, 2.254),
    Sketcher.Constraint("DistanceX", -1, 1, 0, 3, 62.8934),
    Sketcher.Constraint("DistanceY", -1, 1, 1, 3, 10.395661),
    Sketcher.Constraint("DistanceX", -1, 1, 4, 3, 28.180118),
    Sketcher.Constraint("DistanceX", 6, 3, 2, 3, 30.188029),
    Sketcher.Constraint("DistanceY", -1, 1, 0, 3, 23.000944),
    Sketcher.Constraint("DistanceX", -1, 1, 2, 3, 45.580115),
    Sketcher.Constraint("DistanceY", -1, 1, 6, 3, 16.664207),
    Sketcher.Constraint("DistanceX", -1, 1, 7, 3, 4.859282),
])
pad5 = body5.newObject("PartDesign::Pad", "Pad004")
pad5.Profile = sketch5
pad5.Length = 2.01
doc.recompute()

body6 = doc.addObject("PartDesign::Body", "Body005")
body6.BaseFeature = body5
boolean = body.newObject("PartDesign::Boolean", "Boolean")
boolean.Type = "Cut"
boolean.addObjects([body6])
doc.recompute()

body7 = doc.addObject("PartDesign::Body", "Body006")
body7.BaseFeature = body5
boolean2 = body2.newObject("PartDesign::Boolean", "Boolean001")
boolean2.Type = "Cut"
boolean2.addObjects([body7])
doc.recompute()

body8 = doc.addObject("PartDesign::Body", "Body007")
body8.BaseFeature = body5
boolean3 = body3.newObject("PartDesign::Boolean", "Boolean002")
boolean3.Type = "Cut"
boolean3.addObjects([body8])
doc.recompute()

boolean4 = body4.newObject("PartDesign::Boolean", "Boolean003")
boolean4.Type = "Cut"
boolean4.addObjects([body5])

doc.recompute()
